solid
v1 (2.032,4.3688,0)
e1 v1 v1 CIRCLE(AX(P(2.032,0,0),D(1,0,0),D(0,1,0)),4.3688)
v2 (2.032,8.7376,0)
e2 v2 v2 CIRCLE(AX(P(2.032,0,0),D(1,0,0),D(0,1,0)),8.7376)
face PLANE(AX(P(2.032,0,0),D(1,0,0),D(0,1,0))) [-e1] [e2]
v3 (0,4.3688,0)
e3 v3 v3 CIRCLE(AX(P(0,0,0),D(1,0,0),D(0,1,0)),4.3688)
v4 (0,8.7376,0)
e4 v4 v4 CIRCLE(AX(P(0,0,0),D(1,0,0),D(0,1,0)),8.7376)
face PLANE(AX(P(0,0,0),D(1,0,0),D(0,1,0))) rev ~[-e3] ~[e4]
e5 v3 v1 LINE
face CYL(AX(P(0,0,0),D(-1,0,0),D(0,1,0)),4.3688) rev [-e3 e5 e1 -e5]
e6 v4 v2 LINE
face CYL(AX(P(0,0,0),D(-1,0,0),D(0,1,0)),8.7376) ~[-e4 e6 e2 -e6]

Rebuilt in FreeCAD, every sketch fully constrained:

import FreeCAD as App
import Part
import Sketcher

V = App.Vector
Q = App.Units.Quantity

doc = App.newDocument("Part")
body = doc.addObject("PartDesign::Body", "Body")

# Sketch on YZ plane
sketch1 = doc.addObject("Sketcher::SketchObject", "Sketch")
body.addObject(sketch1)
sketch1.AttachmentSupport = (doc.YZ_Plane, [""])
sketch1.MapMode = "FlatFace"
sketch1.addGeometry(Part.Circle(V(0, 0, 0), V(0, 0, 1), 8.7), False)
sketch1.addGeometry(Part.Circle(V(0, 0, 0), V(0, 0, 1), 4.4), False)
sketch1.addConstraint(Sketcher.Constraint("Coincident", 0, 3, -1, 1))
sketch1.addConstraint(Sketcher.Constraint("Coincident", 1, 3, -1, 1))
sketch1.addConstraint(Sketcher.Constraint("Diameter", 0, Q("0.688 in")))
sketch1.addConstraint(Sketcher.Constraint("Diameter", 1, Q("0.344 in")))
pad1 = doc.addObject("PartDesign::Pad", "Pad")
body.addObject(pad1)
pad1.Profile = sketch1
pad1.Length = Q("0.08 in")

doc.recompute()
